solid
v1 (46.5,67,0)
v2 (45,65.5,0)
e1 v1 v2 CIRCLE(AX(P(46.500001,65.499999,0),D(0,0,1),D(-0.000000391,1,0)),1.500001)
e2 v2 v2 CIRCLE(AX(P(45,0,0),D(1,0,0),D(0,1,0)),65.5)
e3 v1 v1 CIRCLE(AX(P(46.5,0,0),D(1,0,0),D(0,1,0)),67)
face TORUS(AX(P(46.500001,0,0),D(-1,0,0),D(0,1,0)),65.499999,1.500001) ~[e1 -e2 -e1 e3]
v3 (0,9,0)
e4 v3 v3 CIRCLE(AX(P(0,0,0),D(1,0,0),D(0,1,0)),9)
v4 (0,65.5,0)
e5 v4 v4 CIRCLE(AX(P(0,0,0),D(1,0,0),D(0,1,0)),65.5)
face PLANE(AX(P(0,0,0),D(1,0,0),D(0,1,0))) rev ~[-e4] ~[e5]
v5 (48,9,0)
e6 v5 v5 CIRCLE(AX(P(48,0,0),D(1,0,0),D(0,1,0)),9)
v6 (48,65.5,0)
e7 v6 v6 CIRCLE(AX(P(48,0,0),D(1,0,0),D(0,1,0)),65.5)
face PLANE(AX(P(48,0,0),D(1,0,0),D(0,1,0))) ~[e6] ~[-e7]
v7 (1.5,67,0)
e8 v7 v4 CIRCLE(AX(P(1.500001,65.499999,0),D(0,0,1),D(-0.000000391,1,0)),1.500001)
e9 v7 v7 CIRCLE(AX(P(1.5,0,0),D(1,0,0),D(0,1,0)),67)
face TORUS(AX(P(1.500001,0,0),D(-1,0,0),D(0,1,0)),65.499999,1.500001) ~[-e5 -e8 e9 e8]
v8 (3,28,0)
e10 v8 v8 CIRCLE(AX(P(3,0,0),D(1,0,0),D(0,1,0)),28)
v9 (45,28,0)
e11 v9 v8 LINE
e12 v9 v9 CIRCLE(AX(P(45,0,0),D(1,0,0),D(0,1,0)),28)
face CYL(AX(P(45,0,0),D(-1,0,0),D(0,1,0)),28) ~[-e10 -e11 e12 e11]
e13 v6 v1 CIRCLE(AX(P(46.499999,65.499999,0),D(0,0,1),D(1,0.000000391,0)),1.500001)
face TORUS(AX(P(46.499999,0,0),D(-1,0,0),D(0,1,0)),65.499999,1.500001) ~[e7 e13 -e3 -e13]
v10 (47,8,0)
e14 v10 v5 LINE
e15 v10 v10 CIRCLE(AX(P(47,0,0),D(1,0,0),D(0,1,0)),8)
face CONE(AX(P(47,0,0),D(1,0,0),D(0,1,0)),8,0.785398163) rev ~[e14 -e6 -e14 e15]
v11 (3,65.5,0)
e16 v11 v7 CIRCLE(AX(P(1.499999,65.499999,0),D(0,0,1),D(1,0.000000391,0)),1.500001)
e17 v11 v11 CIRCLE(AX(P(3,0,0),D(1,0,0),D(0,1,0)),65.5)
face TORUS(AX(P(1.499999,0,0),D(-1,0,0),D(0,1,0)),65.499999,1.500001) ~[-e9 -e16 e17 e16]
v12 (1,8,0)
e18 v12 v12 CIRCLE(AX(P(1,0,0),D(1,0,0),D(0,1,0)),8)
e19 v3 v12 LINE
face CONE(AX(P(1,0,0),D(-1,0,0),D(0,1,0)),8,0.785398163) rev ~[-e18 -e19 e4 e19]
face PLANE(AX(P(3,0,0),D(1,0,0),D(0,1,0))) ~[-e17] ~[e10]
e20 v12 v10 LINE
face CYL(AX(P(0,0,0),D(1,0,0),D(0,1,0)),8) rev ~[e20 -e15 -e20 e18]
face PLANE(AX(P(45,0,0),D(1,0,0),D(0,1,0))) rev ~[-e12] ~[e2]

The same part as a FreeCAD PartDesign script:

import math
import FreeCAD as App
import Part
import Sketcher
Q = App.Units.Quantity


def edges_at(feature, points):
    """Names of the edges that pass closest to the given points."""
    edges = feature.Shape.Edges
    near = lambda p: min(range(len(edges)), key=lambda i: edges[i].distToShape(Part.Vertex(*p))[0])
    return sorted({f"Edge{near(p) + 1}" for p in points})

doc = App.newDocument("Part")
body = doc.addObject("PartDesign::Body", "Body")

# Sketch on XY plane
sketch1 = body.newObject("Sketcher::SketchObject", "Sketch")
sketch1.AttachmentSupport = (doc.getObject("XY_Plane"), [""])
sketch1.MapMode = "FlatFace"
sketch1.addGeometry([
    Part.LineSegment(App.Vector(0, 65.5, 0), App.Vector(0, 8, 0)),  # 0
    Part.LineSegment(App.Vector(0, 8, 0), App.Vector(48, 8, 0)),  # 1
    Part.LineSegment(App.Vector(48, 8, 0), App.Vector(48, 65.5, 0)),  # 2
    Part.ArcOfCircle(Part.Circle(App.Vector(46.499999, 65.499999, 0), App.Vector(0, 0, 1), 1.500001), math.radians(0.000022), math.radians(89.999978)),  # 3
    Part.ArcOfCircle(Part.Circle(App.Vector(46.500001, 65.499999, 0), App.Vector(0, 0, 1), 1.500001), math.radians(90.000022), math.radians(179.999978)),  # 4
    Part.LineSegment(App.Vector(45, 65.5, 0), App.Vector(45, 28, 0)),  # 5
    Part.LineSegment(App.Vector(45, 28, 0), App.Vector(3, 28, 0)),  # 6
    Part.LineSegment(App.Vector(3, 28, 0), App.Vector(3, 65.5, 0)),  # 7
    Part.ArcOfCircle(Part.Circle(App.Vector(1.499999, 65.499999, 0), App.Vector(0, 0, 1), 1.500001), math.radians(0.000022), math.radians(89.999978)),  # 8
    Part.ArcOfCircle(Part.Circle(App.Vector(1.500001, 65.499999, 0), App.Vector(0, 0, 1), 1.500001), math.radians(90.000022), math.radians(179.999978)),  # 9
], False)
sketch1.addConstraint([
    Sketcher.Constraint("Coincident", 0, 2, 1, 1),
    Sketcher.Constraint("Coincident", 1, 2, 2, 1),
    Sketcher.Constraint("Tangent", 2, 2, 3, 1),
    Sketcher.Constraint("Tangent", 3, 2, 4, 1),
    Sketcher.Constraint("Tangent", 4, 2, 5, 1),
    Sketcher.Constraint("Coincident", 5, 2, 6, 1),
    Sketcher.Constraint("Coincident", 6, 2, 7, 1),
    Sketcher.Constraint("Tangent", 7, 2, 8, 1),
    Sketcher.Constraint("Tangent", 8, 2, 9, 1),
    Sketcher.Constraint("Tangent", 9, 2, 0, 1),
    Sketcher.Constraint("Vertical", 0),
    Sketcher.Constraint("Horizontal", 1),
    Sketcher.Constraint("Vertical", 2),
    Sketcher.Constraint("Vertical", 5),
    Sketcher.Constraint("Horizontal", 6),
    Sketcher.Constraint("Vertical", 7),
    Sketcher.Constraint("Equal", 3, 4),
    Sketcher.Constraint("Equal", 4, 8),
    Sketcher.Constraint("Equal", 8, 9),
    Sketcher.Constraint("PointOnObject", 0, 2, -2),
    Sketcher.Constraint("Horizontal", 4, 3, 8, 3),
    Sketcher.Constraint("Vertical", 4, 3, 3, 2),
    Sketcher.Constraint("Vertical", 9, 3, 8, 2),
    Sketcher.Constraint("Radius", 3, Q("1.500001 mm")),
    Sketcher.Constraint("DistanceX", 1, 1, 1, 2, Q("48 mm")),
    Sketcher.Constraint("DistanceY", 0, 2, 0, 1, Q("57.5 mm")),
    Sketcher.Constraint("DistanceY", 5, 2, 5, 1, Q("37.5 mm")),
    Sketcher.Constraint("DistanceY", -1, 1, 0, 2, Q("8 mm")),
])
revolution = body.newObject("PartDesign::Revolution", "Revolution")
revolution.Profile = sketch1
revolution.ReferenceAxis = (sketch1, ["H_Axis"])
revolution.Angle = 360
doc.recompute()

chamfer = body.newObject("PartDesign::Chamfer", "Chamfer")
chamfer.Base = (revolution, edges_at(revolution, [(0, -8, 0), (48, -8, 0)]))
chamfer.Size = 1

doc.recompute()
